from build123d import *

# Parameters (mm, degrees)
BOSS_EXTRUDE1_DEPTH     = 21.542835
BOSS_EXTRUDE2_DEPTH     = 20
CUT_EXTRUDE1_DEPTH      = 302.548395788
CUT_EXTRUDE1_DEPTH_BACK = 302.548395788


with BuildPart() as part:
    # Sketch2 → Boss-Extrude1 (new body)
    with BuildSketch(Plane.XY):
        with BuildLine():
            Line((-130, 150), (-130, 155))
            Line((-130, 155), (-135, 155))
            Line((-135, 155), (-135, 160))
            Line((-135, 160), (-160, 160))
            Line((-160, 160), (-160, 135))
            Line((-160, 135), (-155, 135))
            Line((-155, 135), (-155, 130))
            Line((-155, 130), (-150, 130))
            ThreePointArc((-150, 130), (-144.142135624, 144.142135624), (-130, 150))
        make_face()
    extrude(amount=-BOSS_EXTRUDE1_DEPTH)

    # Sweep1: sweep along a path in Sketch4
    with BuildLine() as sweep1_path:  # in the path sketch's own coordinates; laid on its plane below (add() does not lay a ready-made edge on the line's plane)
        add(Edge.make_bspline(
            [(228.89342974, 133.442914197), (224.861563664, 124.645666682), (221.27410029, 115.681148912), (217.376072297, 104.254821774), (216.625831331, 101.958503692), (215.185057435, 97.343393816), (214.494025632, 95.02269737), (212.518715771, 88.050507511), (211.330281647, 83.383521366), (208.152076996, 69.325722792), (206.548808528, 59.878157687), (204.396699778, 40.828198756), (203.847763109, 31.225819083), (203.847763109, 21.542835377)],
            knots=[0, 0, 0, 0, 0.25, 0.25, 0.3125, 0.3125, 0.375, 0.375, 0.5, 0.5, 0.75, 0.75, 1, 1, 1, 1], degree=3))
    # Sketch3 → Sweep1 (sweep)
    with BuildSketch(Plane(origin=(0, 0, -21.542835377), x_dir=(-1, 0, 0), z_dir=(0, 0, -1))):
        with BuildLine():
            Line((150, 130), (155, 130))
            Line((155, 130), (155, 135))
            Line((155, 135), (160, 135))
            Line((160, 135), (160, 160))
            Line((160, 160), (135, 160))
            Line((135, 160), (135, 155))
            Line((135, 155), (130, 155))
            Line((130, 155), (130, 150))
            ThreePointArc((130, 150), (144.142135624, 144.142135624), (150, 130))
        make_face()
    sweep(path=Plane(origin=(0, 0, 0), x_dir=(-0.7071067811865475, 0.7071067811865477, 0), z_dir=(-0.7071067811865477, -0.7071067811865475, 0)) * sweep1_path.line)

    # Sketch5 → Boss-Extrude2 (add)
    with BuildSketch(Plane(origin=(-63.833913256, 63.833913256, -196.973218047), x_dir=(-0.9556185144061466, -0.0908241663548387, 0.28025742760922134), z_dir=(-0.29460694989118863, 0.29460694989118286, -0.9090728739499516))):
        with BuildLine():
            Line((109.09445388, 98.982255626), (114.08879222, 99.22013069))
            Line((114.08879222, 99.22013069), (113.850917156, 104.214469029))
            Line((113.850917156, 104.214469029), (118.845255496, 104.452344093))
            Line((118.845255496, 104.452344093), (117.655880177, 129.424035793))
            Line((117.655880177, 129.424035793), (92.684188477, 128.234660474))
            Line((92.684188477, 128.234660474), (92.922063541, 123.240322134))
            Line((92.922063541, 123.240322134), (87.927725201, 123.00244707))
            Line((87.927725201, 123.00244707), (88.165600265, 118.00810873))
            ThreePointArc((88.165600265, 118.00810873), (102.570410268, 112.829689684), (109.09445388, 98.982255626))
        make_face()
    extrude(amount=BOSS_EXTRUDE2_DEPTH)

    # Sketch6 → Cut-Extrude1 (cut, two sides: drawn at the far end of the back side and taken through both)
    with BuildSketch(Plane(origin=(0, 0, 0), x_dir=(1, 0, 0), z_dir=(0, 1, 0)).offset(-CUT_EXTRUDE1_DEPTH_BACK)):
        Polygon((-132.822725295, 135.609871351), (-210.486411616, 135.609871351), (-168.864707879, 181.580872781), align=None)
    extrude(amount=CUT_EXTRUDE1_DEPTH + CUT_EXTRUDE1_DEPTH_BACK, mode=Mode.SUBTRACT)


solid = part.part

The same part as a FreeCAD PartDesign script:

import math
import FreeCAD as App
import Part
import Sketcher
from FreeCAD import Vector
Q = App.Units.Quantity


def add_polygon(sketch, points):
    """Adds a closed chain of lines whose ends are joined by coincident constraints."""
    first, n = sketch.GeometryCount, len(points)
    for a, b in zip(points, points[1:] + points[:1]):
        sketch.addGeometry(Part.LineSegment(App.Vector(*a, 0), App.Vector(*b, 0)), False)
    for i in range(n):
        sketch.addConstraint(Sketcher.Constraint("Coincident", first + i, 2, first + (i + 1) % n, 1))

doc = App.newDocument("Part")
body = doc.addObject("PartDesign::Body", "Body")

# Sketch on XY plane
sketch1 = body.newObject("Sketcher::SketchObject", "Sketch")
sketch1.AttachmentSupport = (doc.getObject("XY_Plane"), [""])
sketch1.MapMode = "FlatFace"
sketch1.addGeometry([
    Part.LineSegment(Vector(-130, 150, 0), Vector(-130, 155, 0)),  # 0
    Part.LineSegment(Vector(-130, 155, 0), Vector(-135, 155, 0)),  # 1
    Part.LineSegment(Vector(-135, 155, 0), Vector(-135, 160, 0)),  # 2
    Part.LineSegment(Vector(-135, 160, 0), Vector(-160, 160, 0)),  # 3
    Part.LineSegment(Vector(-160, 160, 0), Vector(-160, 135, 0)),  # 4
    Part.LineSegment(Vector(-160, 135, 0), Vector(-155, 135, 0)),  # 5
    Part.LineSegment(Vector(-155, 135, 0), Vector(-155, 130, 0)),  # 6
    Part.LineSegment(Vector(-155, 130, 0), Vector(-150, 130, 0)),  # 7
    Part.ArcOfCircle(Part.Circle(Vector(-130, 130, 0), Vector(0, 0, 1), 20), math.radians(90), math.radians(180)),  # 8
], False)
sketch1.addConstraint([
    Sketcher.Constraint("Coincident", 0, 2, 1, 1),
    Sketcher.Constraint("Coincident", 1, 2, 2, 1),
    Sketcher.Constraint("Coincident", 2, 2, 3, 1),
    Sketcher.Constraint("Coincident", 3, 2, 4, 1),
    Sketcher.Constraint("Coincident", 4, 2, 5, 1),
    Sketcher.Constraint("Coincident", 5, 2, 6, 1),
    Sketcher.Constraint("Coincident", 6, 2, 7, 1),
    Sketcher.Constraint("Coincident", 7, 2, 8, 2),
    Sketcher.Constraint("Coincident", 8, 1, 0, 1),
    Sketcher.Constraint("Vertical", 0),
    Sketcher.Constraint("Horizontal", 1),
    Sketcher.Constraint("Vertical", 2),
    Sketcher.Constraint("Horizontal", 3),
    Sketcher.Constraint("Vertical", 4),
    Sketcher.Constraint("Horizontal", 5),
    Sketcher.Constraint("Vertical", 6),
    Sketcher.Constraint("Horizontal", 7),
    Sketcher.Constraint("Horizontal", 8, 3, 6, 2),
    Sketcher.Constraint("Vertical", 8, 3, 0, 2),
    Sketcher.Constraint("Equal", 1, 5),
    Sketcher.Constraint("Equal", 5, 7),
    Sketcher.Constraint("Equal", 7, 0),
    Sketcher.Constraint("Equal", 0, 2),
    Sketcher.Constraint("Equal", 3, 4),
    Sketcher.Constraint("Radius", 8, Q("20 mm")),
    Sketcher.Constraint("DistanceX", 1, 2, 1, 1, Q("5 mm")),
    Sketcher.Constraint("DistanceX", 8, 3, -1, 1, Q("130 mm")),
    Sketcher.Constraint("DistanceY", -1, 1, 8, 3, Q("130 mm")),
])
pad1 = body.newObject("PartDesign::Pad", "Pad")
pad1.Profile = sketch1
pad1.Length = 21.542835
pad1.Reversed = True

# Sketch on XY plane
sketch2 = body.newObject("Sketcher::SketchObject", "Sketch001")
sketch2.AttachmentSupport = (doc.getObject("XY_Plane"), [""])
sketch2.MapMode = "FlatFace"
sketch2.AttachmentOffset = App.Placement(Vector(0, 0, -21.542835), App.Rotation())
sketch2.addGeometry([
    Part.LineSegment(Vector(-150, 130, 0), Vector(-155, 130, 0)),  # 0
    Part.LineSegment(Vector(-155, 130, 0), Vector(-155, 135, 0)),  # 1
    Part.LineSegment(Vector(-155, 135, 0), Vector(-160, 135, 0)),  # 2
    Part.LineSegment(Vector(-160, 135, 0), Vector(-160, 160, 0)),  # 3
    Part.LineSegment(Vector(-160, 160, 0), Vector(-135, 160, 0)),  # 4
    Part.LineSegment(Vector(-135, 160, 0), Vector(-135, 155, 0)),  # 5
    Part.LineSegment(Vector(-135, 155, 0), Vector(-130, 155, 0)),  # 6
    Part.LineSegment(Vector(-130, 155, 0), Vector(-130, 150, 0)),  # 7
    Part.ArcOfCircle(Part.Circle(Vector(-130, 130, 0), Vector(0, 0, 1), 20), math.radians(90), math.radians(180)),  # 8
], False)
sketch2.addConstraint([
    Sketcher.Constraint("Coincident", 0, 2, 1, 1),
    Sketcher.Constraint("Coincident", 1, 2, 2, 1),
    Sketcher.Constraint("Coincident", 2, 2, 3, 1),
    Sketcher.Constraint("Coincident", 3, 2, 4, 1),
    Sketcher.Constraint("Coincident", 4, 2, 5, 1),
    Sketcher.Constraint("Coincident", 5, 2, 6, 1),
    Sketcher.Constraint("Coincident", 6, 2, 7, 1),
    Sketcher.Constraint("Coincident", 7, 2, 8, 1),
    Sketcher.Constraint("Coincident", 8, 2, 0, 1),
    Sketcher.Constraint("Horizontal", 0),
    Sketcher.Constraint("Vertical", 1),
    Sketcher.Constraint("Horizontal", 2),
    Sketcher.Constraint("Vertical", 3),
    Sketcher.Constraint("Horizontal", 4),
    Sketcher.Constraint("Vertical", 5),
    Sketcher.Constraint("Horizontal", 6),
    Sketcher.Constraint("Vertical", 7),
    Sketcher.Constraint("Horizontal", 8, 3, 0, 2),
    Sketcher.Constraint("Vertical", 8, 3, 6, 2),
    Sketcher.Constraint("Equal", 0, 2),
    Sketcher.Constraint("Equal", 2, 6),
    Sketcher.Constraint("Equal", 6, 1),
    Sketcher.Constraint("Equal", 4, 3),
    Sketcher.Constraint("Equal", 1, 5),
    Sketcher.Constraint("Radius", 8, Q("20 mm")),
    Sketcher.Constraint("DistanceX", 0, 2, 0, 1, Q("5 mm")),
    Sketcher.Constraint("DistanceX", 8, 3, -1, 1, Q("130 mm")),
    Sketcher.Constraint("DistanceY", -1, 1, 8, 3, Q("130 mm")),
])

# Sketch on an angled plane
sketch3 = body.newObject("Sketcher::SketchObject", "Sketch002")
sketch3.Placement = App.Placement(Vector(0, 0, 0), App.Rotation(Vector(0.707106781, -0.707106781, 0), Vector(0, 0, 0.999999999), Vector(-0.707106781, -0.707106781, 0), "ZXY"))
sketch3.addGeometry(Part.BSplineCurve([Vector(-228.89343, -133.442914, 0), Vector(-224.861564, -124.645667, 0), Vector(-221.2741, -115.681149, 0), Vector(-217.376072, -104.254822, 0), Vector(-216.625831, -101.958504, 0), Vector(-215.185057, -97.343394, 0), Vector(-214.494026, -95.022697, 0), Vector(-212.518716, -88.050507, 0), Vector(-211.330282, -83.383521, 0), Vector(-208.152077, -69.325723, 0), Vector(-206.548808, -59.878158, 0), Vector(-204.3967, -40.828199, 0), Vector(-203.847763, -31.225819, 0), Vector(-203.847763, -21.542835, 0)], [4, 2, 2, 2, 2, 2, 4], [0, 0.25, 0.3125, 0.375, 0.5, 0.75, 1], False, 3, [1, 1, 1, 1, 1, 1, 1, 1, 1, 1, 1, 1, 1, 1], False), False)
sketch3.addConstraint(Sketcher.Constraint("Block", 0))
doc.recompute()

additivepipe = body.newObject("PartDesign::AdditivePipe", "AdditivePipe")
additivepipe.Profile = sketch2
additivepipe.Spine = (sketch3, ["Edge1"])

# Sketch on an angled plane
sketch4 = body.newObject("Sketcher::SketchObject", "Sketch003")
sketch4.Placement = App.Placement(Vector(-63.833913, 63.833913, -196.973218), App.Rotation(Vector(-0.955618514, -0.090824166, 0.280257428), Vector(0, 0.951292655, 0.308289286), Vector(-0.29460695, 0.29460695, -0.909072874), "ZXY"))
sketch4.addGeometry([
    Part.LineSegment(Vector(109.1, 99, 0), Vector(114.1, 99.2, 0)),  # 0
    Part.LineSegment(Vector(114.1, 99.2, 0), Vector(113.9, 104.2, 0)),  # 1
    Part.LineSegment(Vector(113.9, 104.2, 0), Vector(118.8, 104.5, 0)),  # 2
    Part.LineSegment(Vector(118.8, 104.5, 0), Vector(117.7, 129.4, 0)),  # 3
    Part.LineSegment(Vector(117.7, 129.4, 0), Vector(92.7, 128.2, 0)),  # 4
    Part.LineSegment(Vector(92.7, 128.2, 0), Vector(92.9, 123.2, 0)),  # 5
    Part.LineSegment(Vector(92.9, 123.2, 0), Vector(87.9, 123, 0)),  # 6
    Part.LineSegment(Vector(87.9, 123, 0), Vector(88.2, 118, 0)),  # 7
    Part.ArcOfCircle(Part.Circle(Vector(89.1, 98, 0), Vector(0, 0, 1), 20), math.radians(3), math.radians(93)),  # 8
], False)
sketch4.addConstraint([
    Sketcher.Constraint("Coincident", 0, 2, 1, 1),
    Sketcher.Constraint("Coincident", 1, 2, 2, 1),
    Sketcher.Constraint("Coincident", 2, 2, 3, 1),
    Sketcher.Constraint("Coincident", 3, 2, 4, 1),
    Sketcher.Constraint("Coincident", 4, 2, 5, 1),
    Sketcher.Constraint("Coincident", 5, 2, 6, 1),
    Sketcher.Constraint("Coincident", 6, 2, 7, 1),
    Sketcher.Constraint("Coincident", 7, 2, 8, 2),
    Sketcher.Constraint("Coincident", 8, 1, 0, 1),
    Sketcher.Constraint("Perpendicular", 0, 1),
    Sketcher.Constraint("Perpendicular", 1, 2),
    Sketcher.Constraint("Perpendicular", 2, 3),
    Sketcher.Constraint("Perpendicular", 3, 4),
    Sketcher.Constraint("Perpendicular", 4, 5),
    Sketcher.Constraint("Perpendicular", 5, 6),
    Sketcher.Constraint("Perpendicular", 6, 7),
    Sketcher.Constraint("Equal", 0, 1),
    Sketcher.Constraint("Equal", 1, 2),
    Sketcher.Constraint("Equal", 3, 4),
    Sketcher.Constraint("Equal", 2, 5),
    Sketcher.Constraint("Equal", 5, 6),
    Sketcher.Constraint("Equal", 6, 7),
    Sketcher.Constraint("Radius", 8, Q("20 mm")),
    Sketcher.Constraint("Distance", 0, Q("5 mm")),
    Sketcher.Constraint("Distance", 3, Q("25 mm")),
    Sketcher.Constraint("DistanceX", -1, 1, 8, 3, Q("89.1171 mm")),
    Sketcher.Constraint("DistanceX", -1, 1, 7, 2, Q("88.1656 mm")),
    Sketcher.Constraint("DistanceY", -1, 1, 0, 2, Q("99.220131 mm")),
])
pad2 = body.newObject("PartDesign::Pad", "Pad001")
pad2.Profile = sketch4
pad2.Length = 20

# Sketch on XZ plane
sketch5 = body.newObject("Sketcher::SketchObject", "Sketch004")
sketch5.AttachmentSupport = (doc.getObject("XZ_Plane"), [""])
sketch5.MapMode = "FlatFace"
add_polygon(sketch5, [(-210, -136), (-133, -136), (-169, -182)])  # lines 0-2
sketch5.addConstraint([
    Sketcher.Constraint("Horizontal", 0),
    Sketcher.Constraint("DistanceY", 1, 2, 0, 2, Q("45.971001 mm")),
    Sketcher.Constraint("Distance", 2, Q("62.013702 mm")),
    Sketcher.Constraint("DistanceX", 0, 1, 0, 2, Q("77.663686 mm")),
    Sketcher.Constraint("DistanceY", 0, 2, -1, 1, Q("135.609871 mm")),
    Sketcher.Constraint("DistanceX", 2, 2, -1, 1, Q("210.486412 mm")),
])
pocket1 = body.newObject("PartDesign::Pocket", "Pocket")
pocket1.Profile = sketch5
pocket1.Type = "ThroughAll"
pocket1.Midplane = True

doc.recompute()
